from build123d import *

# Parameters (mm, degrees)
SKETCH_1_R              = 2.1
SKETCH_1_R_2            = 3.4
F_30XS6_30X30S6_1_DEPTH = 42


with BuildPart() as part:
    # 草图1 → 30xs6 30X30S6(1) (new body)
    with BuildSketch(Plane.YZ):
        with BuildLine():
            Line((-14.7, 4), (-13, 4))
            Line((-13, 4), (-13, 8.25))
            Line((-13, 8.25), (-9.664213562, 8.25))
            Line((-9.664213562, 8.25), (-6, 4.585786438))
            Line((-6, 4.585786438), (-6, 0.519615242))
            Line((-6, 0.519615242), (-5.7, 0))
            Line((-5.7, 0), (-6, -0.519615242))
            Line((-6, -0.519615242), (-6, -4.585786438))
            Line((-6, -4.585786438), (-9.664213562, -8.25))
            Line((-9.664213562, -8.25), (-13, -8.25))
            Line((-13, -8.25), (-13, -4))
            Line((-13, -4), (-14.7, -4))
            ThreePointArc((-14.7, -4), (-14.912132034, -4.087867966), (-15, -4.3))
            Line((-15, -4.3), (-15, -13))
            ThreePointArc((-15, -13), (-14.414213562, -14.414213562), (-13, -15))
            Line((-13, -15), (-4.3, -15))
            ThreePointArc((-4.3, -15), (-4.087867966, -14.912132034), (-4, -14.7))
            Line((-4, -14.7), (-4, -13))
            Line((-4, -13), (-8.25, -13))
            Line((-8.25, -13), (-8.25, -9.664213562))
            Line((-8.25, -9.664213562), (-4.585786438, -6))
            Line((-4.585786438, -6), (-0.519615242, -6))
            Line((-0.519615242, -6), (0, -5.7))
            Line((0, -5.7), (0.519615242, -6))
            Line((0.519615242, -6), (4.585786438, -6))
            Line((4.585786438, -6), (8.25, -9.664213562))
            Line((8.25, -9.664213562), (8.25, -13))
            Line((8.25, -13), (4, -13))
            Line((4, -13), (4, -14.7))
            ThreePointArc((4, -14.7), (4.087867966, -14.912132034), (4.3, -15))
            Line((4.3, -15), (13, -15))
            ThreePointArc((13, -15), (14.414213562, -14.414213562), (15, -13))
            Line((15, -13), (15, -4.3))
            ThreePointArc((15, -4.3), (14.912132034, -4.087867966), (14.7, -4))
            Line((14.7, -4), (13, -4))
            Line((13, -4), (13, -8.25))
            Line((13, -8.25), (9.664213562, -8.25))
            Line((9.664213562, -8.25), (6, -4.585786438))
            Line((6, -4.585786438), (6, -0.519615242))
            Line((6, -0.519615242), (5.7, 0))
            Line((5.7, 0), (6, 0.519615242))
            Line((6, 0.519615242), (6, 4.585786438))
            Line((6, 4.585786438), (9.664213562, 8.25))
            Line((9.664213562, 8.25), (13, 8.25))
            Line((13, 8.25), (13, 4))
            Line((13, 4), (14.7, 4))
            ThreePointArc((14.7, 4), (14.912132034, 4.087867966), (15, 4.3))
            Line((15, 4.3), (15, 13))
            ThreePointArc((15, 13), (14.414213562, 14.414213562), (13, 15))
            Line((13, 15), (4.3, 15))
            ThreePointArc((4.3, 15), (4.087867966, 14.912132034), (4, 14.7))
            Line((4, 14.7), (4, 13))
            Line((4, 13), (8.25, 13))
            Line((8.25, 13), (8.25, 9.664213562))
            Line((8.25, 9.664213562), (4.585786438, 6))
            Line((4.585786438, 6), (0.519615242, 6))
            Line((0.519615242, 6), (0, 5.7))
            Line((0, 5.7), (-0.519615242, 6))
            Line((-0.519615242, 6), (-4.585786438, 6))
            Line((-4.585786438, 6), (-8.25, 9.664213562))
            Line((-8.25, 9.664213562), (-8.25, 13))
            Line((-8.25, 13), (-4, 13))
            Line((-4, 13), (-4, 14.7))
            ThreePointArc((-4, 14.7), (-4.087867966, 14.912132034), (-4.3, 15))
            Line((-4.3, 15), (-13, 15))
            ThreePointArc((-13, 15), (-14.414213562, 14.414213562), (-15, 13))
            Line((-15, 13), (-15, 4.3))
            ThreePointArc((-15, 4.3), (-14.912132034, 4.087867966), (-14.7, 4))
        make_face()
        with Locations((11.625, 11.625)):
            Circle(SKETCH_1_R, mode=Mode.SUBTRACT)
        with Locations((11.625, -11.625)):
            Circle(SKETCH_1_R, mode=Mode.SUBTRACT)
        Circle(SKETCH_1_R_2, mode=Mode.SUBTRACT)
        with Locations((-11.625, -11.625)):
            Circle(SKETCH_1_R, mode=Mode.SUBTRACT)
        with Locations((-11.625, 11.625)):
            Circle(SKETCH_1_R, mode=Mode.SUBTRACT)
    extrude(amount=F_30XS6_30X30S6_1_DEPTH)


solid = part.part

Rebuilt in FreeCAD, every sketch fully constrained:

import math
import FreeCAD as App
import Part
import Sketcher
from FreeCAD import Vector
Q = App.Units.Quantity

doc = App.newDocument("Part")
params = doc.addObject("Spreadsheet::Sheet", "Params")
for row, (alias, value) in enumerate([
    ("sketch1_radius", "2 mm"),
    ("sketch1_diameter", "4.2 mm"),
    ("sketch1_diameter2", "6.8 mm"),
    ("sketch1_radius2", "0.3 mm"),
    ("sketch1_width", "8.7 mm"),
    ("pad1_length", "42 mm"),
], start=1):
    params.set(f"A{row}", alias)
    params.set(f"B{row}", "=" + value)
    params.setAlias(f"B{row}", alias)

body = doc.addObject("PartDesign::Body", "Body")

sketch1 = body.newObject("Sketcher::SketchObject", "Sketch")
sketch1.AttachmentSupport = (doc.getObject("YZ_Plane"), [""])
sketch1.MapMode = "FlatFace"
sketch1.addGeometry([
    Part.LineSegment(Vector(-14.7, 4, 0), Vector(-13, 4, 0)),
    Part.LineSegment(Vector(-13, 4, 0), Vector(-13, 8.25, 0)),
    Part.LineSegment(Vector(-13, 8.25, 0), Vector(-9.66, 8.25, 0)),
    Part.LineSegment(Vector(-9.66, 8.25, 0), Vector(-6, 4.59, 0)),
    Part.LineSegment(Vector(-6, 4.59, 0), Vector(-6, 0.52, 0)),
    Part.LineSegment(Vector(-6, 0.52, 0), Vector(-5.7, 0, 0)),
    Part.LineSegment(Vector(-5.7, 0, 0), Vector(-6, -0.52, 0)),
    Part.LineSegment(Vector(-6, -0.52, 0), Vector(-6, -4.59, 0)),
    Part.LineSegment(Vector(-6, -4.59, 0), Vector(-9.66, -8.25, 0)),
    Part.LineSegment(Vector(-9.66, -8.25, 0), Vector(-13, -8.25, 0)),
    Part.LineSegment(Vector(-13, -8.25, 0), Vector(-13, -4, 0)),
    Part.LineSegment(Vector(-13, -4, 0), Vector(-14.7, -4, 0)),
    Part.ArcOfCircle(Part.Circle(Vector(-14.7, -4.3, 0), Vector(0, 0, 1), 0.3), math.radians(90), math.radians(180)),
    Part.LineSegment(Vector(-15, -4.3, 0), Vector(-15, -13, 0)),
    Part.ArcOfCircle(Part.Circle(Vector(-13, -13, 0), Vector(0, 0, 1), 2), math.radians(-180), math.radians(-90)),
    Part.LineSegment(Vector(-13, -15, 0), Vector(-4.3, -15, 0)),
    Part.ArcOfCircle(Part.Circle(Vector(-4.3, -14.7, 0), Vector(0, 0, 1), 0.3), math.radians(-90), math.radians(0)),
    Part.LineSegment(Vector(-4, -14.7, 0), Vector(-4, -13, 0)),
    Part.LineSegment(Vector(-4, -13, 0), Vector(-8.25, -13, 0)),
    Part.LineSegment(Vector(-8.25, -13, 0), Vector(-8.25, -9.66, 0)),
    Part.LineSegment(Vector(-8.25, -9.66, 0), Vector(-4.59, -6, 0)),
    Part.LineSegment(Vector(-4.59, -6, 0), Vector(-0.52, -6, 0)),
    Part.LineSegment(Vector(-0.52, -6, 0), Vector(0, -5.7, 0)),
    Part.LineSegment(Vector(0, -5.7, 0), Vector(0.52, -6, 0)),
    Part.LineSegment(Vector(0.52, -6, 0), Vector(4.59, -6, 0)),
    Part.LineSegment(Vector(4.59, -6, 0), Vector(8.25, -9.66, 0)),
    Part.LineSegment(Vector(8.25, -9.66, 0), Vector(8.25, -13, 0)),
    Part.LineSegment(Vector(8.25, -13, 0), Vector(4, -13, 0)),
    Part.LineSegment(Vector(4, -13, 0), Vector(4, -14.7, 0)),
    Part.ArcOfCircle(Part.Circle(Vector(4.3, -14.7, 0), Vector(0, 0, 1), 0.3), math.radians(-180), math.radians(-90)),
    Part.LineSegment(Vector(4.3, -15, 0), Vector(13, -15, 0)),
    Part.ArcOfCircle(Part.Circle(Vector(13, -13, 0), Vector(0, 0, 1), 2), math.radians(-90), math.radians(0)),
    Part.LineSegment(Vector(15, -13, 0), Vector(15, -4.3, 0)),
    Part.ArcOfCircle(Part.Circle(Vector(14.7, -4.3, 0), Vector(0, 0, 1), 0.3), math.radians(0), math.radians(90)),
    Part.LineSegment(Vector(14.7, -4, 0), Vector(13, -4, 0)),
    Part.LineSegment(Vector(13, -4, 0), Vector(13, -8.25, 0)),
    Part.LineSegment(Vector(13, -8.25, 0), Vector(9.66, -8.25, 0)),
    Part.LineSegment(Vector(9.66, -8.25, 0), Vector(6, -4.59, 0)),
    Part.LineSegment(Vector(6, -4.59, 0), Vector(6, -0.52, 0)),
    Part.LineSegment(Vector(6, -0.52, 0), Vector(5.7, 0, 0)),
    Part.LineSegment(Vector(5.7, 0, 0), Vector(6, 0.52, 0)),
    Part.LineSegment(Vector(6, 0.52, 0), Vector(6, 4.59, 0)),
    Part.LineSegment(Vector(6, 4.59, 0), Vector(9.66, 8.25, 0)),
    Part.LineSegment(Vector(9.66, 8.25, 0), Vector(13, 8.25, 0)),
    Part.LineSegment(Vector(13, 8.25, 0), Vector(13, 4, 0)),
    Part.LineSegment(Vector(13, 4, 0), Vector(14.7, 4, 0)),
    Part.ArcOfCircle(Part.Circle(Vector(14.7, 4.3, 0), Vector(0, 0, 1), 0.3), math.radians(-90), math.radians(0)),
    Part.LineSegment(Vector(15, 4.3, 0), Vector(15, 13, 0)),
    Part.ArcOfCircle(Part.Circle(Vector(13, 13, 0), Vector(0, 0, 1), 2), math.radians(0), math.radians(90)),
    Part.LineSegment(Vector(13, 15, 0), Vector(4.3, 15, 0)),
    Part.ArcOfCircle(Part.Circle(Vector(4.3, 14.7, 0), Vector(0, 0, 1), 0.3), math.radians(90), math.radians(180)),
    Part.LineSegment(Vector(4, 14.7, 0), Vector(4, 13, 0)),
    Part.LineSegment(Vector(4, 13, 0), Vector(8.25, 13, 0)),
    Part.LineSegment(Vector(8.25, 13, 0), Vector(8.25, 9.66, 0)),
    Part.LineSegment(Vector(8.25, 9.66, 0), Vector(4.59, 6, 0)),
    Part.LineSegment(Vector(4.59, 6, 0), Vector(0.52, 6, 0)),
    Part.LineSegment(Vector(0.52, 6, 0), Vector(0, 5.7, 0)),
    Part.LineSegment(Vector(0, 5.7, 0), Vector(-0.52, 6, 0)),
    Part.LineSegment(Vector(-0.52, 6, 0), Vector(-4.59, 6, 0)),
    Part.LineSegment(Vector(-4.59, 6, 0), Vector(-8.25, 9.66, 0)),
    Part.LineSegment(Vector(-8.25, 9.66, 0), Vector(-8.25, 13, 0)),
    Part.LineSegment(Vector(-8.25, 13, 0), Vector(-4, 13, 0)),
    Part.LineSegment(Vector(-4, 13, 0), Vector(-4, 14.7, 0)),
    Part.ArcOfCircle(Part.Circle(Vector(-4.3, 14.7, 0), Vector(0, 0, 1), 0.3), math.radians(0), math.radians(90)),
    Part.LineSegment(Vector(-4.3, 15, 0), Vector(-13, 15, 0)),
    Part.ArcOfCircle(Part.Circle(Vector(-13, 13, 0), Vector(0, 0, 1), 2), math.radians(90), math.radians(180)),
    Part.LineSegment(Vector(-15, 13, 0), Vector(-15, 4.3, 0)),
    Part.ArcOfCircle(Part.Circle(Vector(-14.7, 4.3, 0), Vector(0, 0, 1), 0.3), math.radians(-180), math.radians(-90)),
    Part.Circle(Vector(-11.62, -11.62, 0), Vector(0, 0, 1), 2.1),
    Part.Circle(Vector(11.62, -11.62, 0), Vector(0, 0, 1), 2.1),
    Part.Circle(Vector(-11.62, 11.62, 0), Vector(0, 0, 1), 2.1),
    Part.Circle(Vector(0, 0, 0), Vector(0, 0, 1), 3.4),
    Part.Circle(Vector(11.62, 11.62, 0), Vector(0, 0, 1), 2.1),
], False)
sketch1.addConstraint([
    Sketcher.Constraint("Coincident", 0, 2, 1, 1),
    Sketcher.Constraint("Coincident", 1, 2, 2, 1),
    Sketcher.Constraint("Coincident", 2, 2, 3, 1),
    Sketcher.Constraint("Coincident", 3, 2, 4, 1),
    Sketcher.Constraint("Coincident", 4, 2, 5, 1),
    Sketcher.Constraint("Coincident", 5, 2, 6, 1),
    Sketcher.Constraint("Coincident", 6, 2, 7, 1),
    Sketcher.Constraint("Coincident", 7, 2, 8, 1),
    Sketcher.Constraint("Coincident", 8, 2, 9, 1),
    Sketcher.Constraint("Coincident", 9, 2, 10, 1),
    Sketcher.Constraint("Coincident", 10, 2, 11, 1),
    Sketcher.Constraint("Tangent", 11, 2, 12, 1),
    Sketcher.Constraint("Tangent", 12, 2, 13, 1),
    Sketcher.Constraint("Tangent", 13, 2, 14, 1),
    Sketcher.Constraint("Tangent", 14, 2, 15, 1),
    Sketcher.Constraint("Tangent", 15, 2, 16, 1),
    Sketcher.Constraint("Tangent", 16, 2, 17, 1),
    Sketcher.Constraint("Coincident", 17, 2, 18, 1),
    Sketcher.Constraint("Coincident", 18, 2, 19, 1),
    Sketcher.Constraint("Coincident", 19, 2, 20, 1),
    Sketcher.Constraint("Coincident", 20, 2, 21, 1),
    Sketcher.Constraint("Coincident", 21, 2, 22, 1),
    Sketcher.Constraint("Coincident", 22, 2, 23, 1),
    Sketcher.Constraint("Coincident", 23, 2, 24, 1),
    Sketcher.Constraint("Coincident", 24, 2, 25, 1),
    Sketcher.Constraint("Coincident", 25, 2, 26, 1),
    Sketcher.Constraint("Coincident", 26, 2, 27, 1),
    Sketcher.Constraint("Coincident", 27, 2, 28, 1),
    Sketcher.Constraint("Tangent", 28, 2, 29, 1),
    Sketcher.Constraint("Tangent", 29, 2, 30, 1),
    Sketcher.Constraint("Tangent", 30, 2, 31, 1),
    Sketcher.Constraint("Tangent", 31, 2, 32, 1),
    Sketcher.Constraint("Tangent", 32, 2, 33, 1),
    Sketcher.Constraint("Tangent", 33, 2, 34, 1),
    Sketcher.Constraint("Coincident", 34, 2, 35, 1),
    Sketcher.Constraint("Coincident", 35, 2, 36, 1),
    Sketcher.Constraint("Coincident", 36, 2, 37, 1),
    Sketcher.Constraint("Coincident", 37, 2, 38, 1),
    Sketcher.Constraint("Coincident", 38, 2, 39, 1),
    Sketcher.Constraint("Coincident", 39, 2, 40, 1),
    Sketcher.Constraint("Coincident", 40, 2, 41, 1),
    Sketcher.Constraint("Coincident", 41, 2, 42, 1),
    Sketcher.Constraint("Coincident", 42, 2, 43, 1),
    Sketcher.Constraint("Coincident", 43, 2, 44, 1),
    Sketcher.Constraint("Coincident", 44, 2, 45, 1),
    Sketcher.Constraint("Tangent", 45, 2, 46, 1),
    Sketcher.Constraint("Tangent", 46, 2, 47, 1),
    Sketcher.Constraint("Tangent", 47, 2, 48, 1),
    Sketcher.Constraint("Tangent", 48, 2, 49, 1),
    Sketcher.Constraint("Tangent", 49, 2, 50, 1),
    Sketcher.Constraint("Tangent", 50, 2, 51, 1),
    Sketcher.Constraint("Coincident", 51, 2, 52, 1),
    Sketcher.Constraint("Coincident", 52, 2, 53, 1),
    Sketcher.Constraint("Coincident", 53, 2, 54, 1),
    Sketcher.Constraint("Coincident", 54, 2, 55, 1),
    Sketcher.Constraint("Coincident", 55, 2, 56, 1),
    Sketcher.Constraint("Coincident", 56, 2, 57, 1),
    Sketcher.Constraint("Coincident", 57, 2, 58, 1),
    Sketcher.Constraint("Coincident", 58, 2, 59, 1),
    Sketcher.Constraint("Coincident", 59, 2, 60, 1),
    Sketcher.Constraint("Coincident", 60, 2, 61, 1),
    Sketcher.Constraint("Coincident", 61, 2, 62, 1),
    Sketcher.Constraint("Tangent", 62, 2, 63, 1),
    Sketcher.Constraint("Tangent", 63, 2, 64, 1),
    Sketcher.Constraint("Tangent", 64, 2, 65, 1),
    Sketcher.Constraint("Tangent", 65, 2, 66, 1),
    Sketcher.Constraint("Tangent", 66, 2, 67, 1),
    Sketcher.Constraint("Tangent", 67, 2, 0, 1),
    Sketcher.Constraint("Horizontal", 0),
    Sketcher.Constraint("Vertical", 1),
    Sketcher.Constraint("Horizontal", 2),
    Sketcher.Constraint("Vertical", 4),
    Sketcher.Constraint("Vertical", 7),
    Sketcher.Constraint("Horizontal", 9),
    Sketcher.Constraint("Vertical", 10),
    Sketcher.Constraint("Horizontal", 11),
    Sketcher.Constraint("Vertical", 13),
    Sketcher.Constraint("Horizontal", 15),
    Sketcher.Constraint("Vertical", 17),
    Sketcher.Constraint("Horizontal", 18),
    Sketcher.Constraint("Vertical", 19),
    Sketcher.Constraint("Horizontal", 21),
    Sketcher.Constraint("Horizontal", 24),
    Sketcher.Constraint("Vertical", 26),
    Sketcher.Constraint("Horizontal", 27),
    Sketcher.Constraint("Vertical", 28),
    Sketcher.Constraint("Horizontal", 30),
    Sketcher.Constraint("Vertical", 32),
    Sketcher.Constraint("Horizontal", 34),
    Sketcher.Constraint("Vertical", 35),
    Sketcher.Constraint("Horizontal", 36),
    Sketcher.Constraint("Vertical", 38),
    Sketcher.Constraint("Vertical", 41),
    Sketcher.Constraint("Horizontal", 43),
    Sketcher.Constraint("Vertical", 44),
    Sketcher.Constraint("Horizontal", 45),
    Sketcher.Constraint("Vertical", 47),
    Sketcher.Constraint("Horizontal", 49),
    Sketcher.Constraint("Vertical", 51),
    Sketcher.Constraint("Horizontal", 52),
    Sketcher.Constraint("Vertical", 53),
    Sketcher.Constraint("Horizontal", 55),
    Sketcher.Constraint("Horizontal", 58),
    Sketcher.Constraint("Vertical", 60),
    Sketcher.Constraint("Horizontal", 61),
    Sketcher.Constraint("Vertical", 62),
    Sketcher.Constraint("Horizontal", 64),
    Sketcher.Constraint("Vertical", 66),
    Sketcher.Constraint("Coincident", 71, 3, -1, 1),
    Sketcher.Constraint("Equal", 12, 16),
    Sketcher.Constraint("Equal", 16, 29),
    Sketcher.Constraint("Equal", 14, 31),
    Sketcher.Constraint("Equal", 29, 33),
    Sketcher.Constraint("Equal", 33, 46),
    Sketcher.Constraint("Equal", 31, 48),
    Sketcher.Constraint("Equal", 46, 50),
    Sketcher.Constraint("Equal", 50, 63),
    Sketcher.Constraint("Equal", 48, 65),
    Sketcher.Constraint("Equal", 63, 67),
    Sketcher.Constraint("Equal", 68, 69),
    Sketcher.Constraint("Equal", 69, 70),
    Sketcher.Constraint("Equal", 70, 72),
    Sketcher.Constraint("Symmetric", 12, 3, 46, 3, -1, 1),
    Sketcher.Constraint("Symmetric", 16, 3, 50, 3, -1, 1),
    Sketcher.Constraint("Symmetric", 29, 3, 63, 3, -1, 1),
    Sketcher.Constraint("Symmetric", 33, 3, 67, 3, -1, 1),
    Sketcher.Constraint("Symmetric", 69, 3, 70, 3, -1, 1),
    Sketcher.Constraint("Symmetric", 68, 3, 72, 3, -1, 1),
    Sketcher.Constraint("Symmetric", 1, 2, 35, 2, -1, 1),
    Sketcher.Constraint("Symmetric", 3, 2, 37, 2, -1, 1),
    Sketcher.Constraint("Symmetric", 5, 2, 39, 2, -1, 1),
    Sketcher.Constraint("Symmetric", 6, 2, 40, 2, -1, 1),
    Sketcher.Constraint("Symmetric", 8, 2, 42, 2, -1, 1),
    Sketcher.Constraint("Symmetric", 18, 2, 52, 2, -1, 1),
    Sketcher.Constraint("Symmetric", 20, 2, 54, 2, -1, 1),
    Sketcher.Constraint("Symmetric", 22, 2, 56, 2, -1, 1),
    Sketcher.Constraint("Symmetric", 23, 2, 57, 2, -1, 1),
    Sketcher.Constraint("Symmetric", 25, 2, 59, 2, -1, 1),
    Sketcher.Constraint("Symmetric", 16, 3, 29, 3, -2),
    Sketcher.Constraint("Symmetric", 12, 3, 33, 3, -2),
    Sketcher.Constraint("Symmetric", 68, 3, 69, 3, -2),
    Sketcher.Constraint("Symmetric", 21, 2, 23, 2, -2),
    Sketcher.Constraint("Symmetric", 19, 2, 25, 2, -2),
    Sketcher.Constraint("Symmetric", 9, 2, 35, 2, -2),
    Sketcher.Constraint("Symmetric", 7, 2, 37, 2, -2),
    Sketcher.Constraint("PointOnObject", 5, 2, -1),
    Sketcher.Constraint("PointOnObject", 22, 2, -2),
    Sketcher.Constraint("Perpendicular", 3, 8),
    Sketcher.Constraint("Parallel", 8, 20),
    Sketcher.Constraint("Perpendicular", 5, 22),
    Sketcher.Constraint("Perpendicular", 6, 23),
    Sketcher.Constraint("Perpendicular", 20, 25),
    Sketcher.Constraint("Parallel", 25, 37),
    Sketcher.Constraint("Perpendicular", 22, 39),
    Sketcher.Constraint("Perpendicular", 37, 42),
    Sketcher.Constraint("Parallel", 42, 54),
    Sketcher.Constraint("Perpendicular", 39, 56),
    Sketcher.Constraint("Perpendicular", 54, 59),
    Sketcher.Constraint("Horizontal", 13, 2, 17, 2),
    Sketcher.Constraint("Horizontal", 18, 2, 26, 2),
    Sketcher.Constraint("Horizontal", 52, 2, 60, 2),
    Sketcher.Constraint("Vertical", 65, 3, 0, 2),
    Sketcher.Constraint("Vertical", 2, 2, 8, 2),
    Sketcher.Constraint("Vertical", 35, 2, 43, 2),
    Sketcher.Constraint("Equal", 61, 1),
    Sketcher.Constraint("Equal", 58, 4),
    Sketcher.Constraint("Equal", 64, 13),
    Sketcher.Constraint("Equal", 43, 19),
    Sketcher.Constraint("Equal", 8, 20),
    Sketcher.Constraint("Equal", 6, 22),
    Sketcher.Constraint("Radius", 14, 2.0),
    Sketcher.Constraint("Diameter", 68, 4.2),
    Sketcher.Constraint("Diameter", 71, 6.8),
    Sketcher.Constraint("Radius", 12, 0.3),
    Sketcher.Constraint("Angle", 5, Q("-60 deg")),
    Sketcher.Constraint("DistanceX", 15, 1, 15, 2, 8.7),
    Sketcher.Constraint("DistanceX", 14, 3, -1, 1, 13.0),
    Sketcher.Constraint("DistanceX", 3, 2, -1, 1, 6.0),
    Sketcher.Constraint("Distance", 5, 0.6),
    Sketcher.Constraint("DistanceX", 18, 2, 18, 1, 4.25),
    Sketcher.Constraint("DistanceX", 68, 3, -1, 1, 11.625),
    Sketcher.Constraint("DistanceY", 68, 3, -1, 1, 11.625),
    Sketcher.Constraint("DistanceX", 21, 1, 21, 2, 4.066171),
])
sketch1.setExpression("Constraints[170]", "Params.sketch1_radius")
sketch1.setExpression("Constraints[171]", "Params.sketch1_diameter")
sketch1.setExpression("Constraints[172]", "Params.sketch1_diameter2")
sketch1.setExpression("Constraints[173]", "Params.sketch1_radius2")
sketch1.setExpression("Constraints[175]", "Params.sketch1_width")
pad1 = body.newObject("PartDesign::Pad", "Pad")
pad1.Profile = sketch1
pad1.setExpression("Length", "Params.pad1_length")

doc.recompute()
